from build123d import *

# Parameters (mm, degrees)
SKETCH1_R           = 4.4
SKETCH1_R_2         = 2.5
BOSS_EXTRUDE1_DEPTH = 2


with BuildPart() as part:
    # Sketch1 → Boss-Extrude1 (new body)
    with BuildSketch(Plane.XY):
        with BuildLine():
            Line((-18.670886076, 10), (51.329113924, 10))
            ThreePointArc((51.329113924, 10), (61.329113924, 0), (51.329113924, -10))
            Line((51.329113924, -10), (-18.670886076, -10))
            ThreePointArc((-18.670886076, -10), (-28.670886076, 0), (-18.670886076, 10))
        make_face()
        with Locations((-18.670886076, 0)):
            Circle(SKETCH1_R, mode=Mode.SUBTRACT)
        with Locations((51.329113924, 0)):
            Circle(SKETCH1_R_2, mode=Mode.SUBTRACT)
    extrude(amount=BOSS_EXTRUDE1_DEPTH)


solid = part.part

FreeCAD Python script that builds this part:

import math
import FreeCAD as App
import Part
import Sketcher
Q = App.Units.Quantity

doc = App.newDocument("Part")
body = doc.addObject("PartDesign::Body", "Body")

# Sketch on XY plane
sketch1 = body.newObject("Sketcher::SketchObject", "Sketch")
sketch1.AttachmentSupport = (doc.getObject("XY_Plane"), [""])
sketch1.MapMode = "FlatFace"
sketch1.addGeometry(Part.LineSegment(App.Vector(51.3, 10, 0), App.Vector(-18.7, 10, 0)), False)
sketch1.addGeometry(Part.ArcOfCircle(Part.Circle(App.Vector(-18.7, 0, 0), App.Vector(0, 0, 1), 10), math.radians(90), math.radians(270)), False)
sketch1.addGeometry(Part.LineSegment(App.Vector(-18.7, -10, 0), App.Vector(51.3, -10, 0)), False)
sketch1.addGeometry(Part.ArcOfCircle(Part.Circle(App.Vector(51.3, 0, 0), App.Vector(0, 0, 1), 10), math.radians(-90), math.radians(90)), False)
sketch1.addGeometry(Part.Circle(App.Vector(51.3, 0, 0), App.Vector(0, 0, 1), 2.5), False)
sketch1.addGeometry(Part.Circle(App.Vector(-18.7, 0, 0), App.Vector(0, 0, 1), 4.4), False)
sketch1.addConstraint(Sketcher.Constraint("Tangent", 0, 2, 1, 1))
sketch1.addConstraint(Sketcher.Constraint("Tangent", 1, 2, 2, 1))
sketch1.addConstraint(Sketcher.Constraint("Tangent", 2, 2, 3, 1))
sketch1.addConstraint(Sketcher.Constraint("Tangent", 3, 2, 0, 1))
sketch1.addConstraint(Sketcher.Constraint("Horizontal", 0))
sketch1.addConstraint(Sketcher.Constraint("Horizontal", 2))
sketch1.addConstraint(Sketcher.Constraint("Coincident", 4, 3, 3, 3))
sketch1.addConstraint(Sketcher.Constraint("Coincident", 5, 3, 1, 3))
sketch1.addConstraint(Sketcher.Constraint("PointOnObject", 1, 3, -1))
sketch1.addConstraint(Sketcher.Constraint("Diameter", 4, Q("5 mm")))
sketch1.addConstraint(Sketcher.Constraint("Radius", 1, Q("10 mm")))
sketch1.addConstraint(Sketcher.Constraint("Diameter", 5, Q("8.8 mm")))
sketch1.addConstraint(Sketcher.Constraint("DistanceX", 0, 2, 0, 1, Q("70 mm")))
sketch1.addConstraint(Sketcher.Constraint("DistanceX", 1, 3, -1, 1, Q("18.670886 mm")))
pad1 = body.newObject("PartDesign::Pad", "Pad")
pad1.Profile = sketch1
pad1.Length = 2

doc.recompute()
